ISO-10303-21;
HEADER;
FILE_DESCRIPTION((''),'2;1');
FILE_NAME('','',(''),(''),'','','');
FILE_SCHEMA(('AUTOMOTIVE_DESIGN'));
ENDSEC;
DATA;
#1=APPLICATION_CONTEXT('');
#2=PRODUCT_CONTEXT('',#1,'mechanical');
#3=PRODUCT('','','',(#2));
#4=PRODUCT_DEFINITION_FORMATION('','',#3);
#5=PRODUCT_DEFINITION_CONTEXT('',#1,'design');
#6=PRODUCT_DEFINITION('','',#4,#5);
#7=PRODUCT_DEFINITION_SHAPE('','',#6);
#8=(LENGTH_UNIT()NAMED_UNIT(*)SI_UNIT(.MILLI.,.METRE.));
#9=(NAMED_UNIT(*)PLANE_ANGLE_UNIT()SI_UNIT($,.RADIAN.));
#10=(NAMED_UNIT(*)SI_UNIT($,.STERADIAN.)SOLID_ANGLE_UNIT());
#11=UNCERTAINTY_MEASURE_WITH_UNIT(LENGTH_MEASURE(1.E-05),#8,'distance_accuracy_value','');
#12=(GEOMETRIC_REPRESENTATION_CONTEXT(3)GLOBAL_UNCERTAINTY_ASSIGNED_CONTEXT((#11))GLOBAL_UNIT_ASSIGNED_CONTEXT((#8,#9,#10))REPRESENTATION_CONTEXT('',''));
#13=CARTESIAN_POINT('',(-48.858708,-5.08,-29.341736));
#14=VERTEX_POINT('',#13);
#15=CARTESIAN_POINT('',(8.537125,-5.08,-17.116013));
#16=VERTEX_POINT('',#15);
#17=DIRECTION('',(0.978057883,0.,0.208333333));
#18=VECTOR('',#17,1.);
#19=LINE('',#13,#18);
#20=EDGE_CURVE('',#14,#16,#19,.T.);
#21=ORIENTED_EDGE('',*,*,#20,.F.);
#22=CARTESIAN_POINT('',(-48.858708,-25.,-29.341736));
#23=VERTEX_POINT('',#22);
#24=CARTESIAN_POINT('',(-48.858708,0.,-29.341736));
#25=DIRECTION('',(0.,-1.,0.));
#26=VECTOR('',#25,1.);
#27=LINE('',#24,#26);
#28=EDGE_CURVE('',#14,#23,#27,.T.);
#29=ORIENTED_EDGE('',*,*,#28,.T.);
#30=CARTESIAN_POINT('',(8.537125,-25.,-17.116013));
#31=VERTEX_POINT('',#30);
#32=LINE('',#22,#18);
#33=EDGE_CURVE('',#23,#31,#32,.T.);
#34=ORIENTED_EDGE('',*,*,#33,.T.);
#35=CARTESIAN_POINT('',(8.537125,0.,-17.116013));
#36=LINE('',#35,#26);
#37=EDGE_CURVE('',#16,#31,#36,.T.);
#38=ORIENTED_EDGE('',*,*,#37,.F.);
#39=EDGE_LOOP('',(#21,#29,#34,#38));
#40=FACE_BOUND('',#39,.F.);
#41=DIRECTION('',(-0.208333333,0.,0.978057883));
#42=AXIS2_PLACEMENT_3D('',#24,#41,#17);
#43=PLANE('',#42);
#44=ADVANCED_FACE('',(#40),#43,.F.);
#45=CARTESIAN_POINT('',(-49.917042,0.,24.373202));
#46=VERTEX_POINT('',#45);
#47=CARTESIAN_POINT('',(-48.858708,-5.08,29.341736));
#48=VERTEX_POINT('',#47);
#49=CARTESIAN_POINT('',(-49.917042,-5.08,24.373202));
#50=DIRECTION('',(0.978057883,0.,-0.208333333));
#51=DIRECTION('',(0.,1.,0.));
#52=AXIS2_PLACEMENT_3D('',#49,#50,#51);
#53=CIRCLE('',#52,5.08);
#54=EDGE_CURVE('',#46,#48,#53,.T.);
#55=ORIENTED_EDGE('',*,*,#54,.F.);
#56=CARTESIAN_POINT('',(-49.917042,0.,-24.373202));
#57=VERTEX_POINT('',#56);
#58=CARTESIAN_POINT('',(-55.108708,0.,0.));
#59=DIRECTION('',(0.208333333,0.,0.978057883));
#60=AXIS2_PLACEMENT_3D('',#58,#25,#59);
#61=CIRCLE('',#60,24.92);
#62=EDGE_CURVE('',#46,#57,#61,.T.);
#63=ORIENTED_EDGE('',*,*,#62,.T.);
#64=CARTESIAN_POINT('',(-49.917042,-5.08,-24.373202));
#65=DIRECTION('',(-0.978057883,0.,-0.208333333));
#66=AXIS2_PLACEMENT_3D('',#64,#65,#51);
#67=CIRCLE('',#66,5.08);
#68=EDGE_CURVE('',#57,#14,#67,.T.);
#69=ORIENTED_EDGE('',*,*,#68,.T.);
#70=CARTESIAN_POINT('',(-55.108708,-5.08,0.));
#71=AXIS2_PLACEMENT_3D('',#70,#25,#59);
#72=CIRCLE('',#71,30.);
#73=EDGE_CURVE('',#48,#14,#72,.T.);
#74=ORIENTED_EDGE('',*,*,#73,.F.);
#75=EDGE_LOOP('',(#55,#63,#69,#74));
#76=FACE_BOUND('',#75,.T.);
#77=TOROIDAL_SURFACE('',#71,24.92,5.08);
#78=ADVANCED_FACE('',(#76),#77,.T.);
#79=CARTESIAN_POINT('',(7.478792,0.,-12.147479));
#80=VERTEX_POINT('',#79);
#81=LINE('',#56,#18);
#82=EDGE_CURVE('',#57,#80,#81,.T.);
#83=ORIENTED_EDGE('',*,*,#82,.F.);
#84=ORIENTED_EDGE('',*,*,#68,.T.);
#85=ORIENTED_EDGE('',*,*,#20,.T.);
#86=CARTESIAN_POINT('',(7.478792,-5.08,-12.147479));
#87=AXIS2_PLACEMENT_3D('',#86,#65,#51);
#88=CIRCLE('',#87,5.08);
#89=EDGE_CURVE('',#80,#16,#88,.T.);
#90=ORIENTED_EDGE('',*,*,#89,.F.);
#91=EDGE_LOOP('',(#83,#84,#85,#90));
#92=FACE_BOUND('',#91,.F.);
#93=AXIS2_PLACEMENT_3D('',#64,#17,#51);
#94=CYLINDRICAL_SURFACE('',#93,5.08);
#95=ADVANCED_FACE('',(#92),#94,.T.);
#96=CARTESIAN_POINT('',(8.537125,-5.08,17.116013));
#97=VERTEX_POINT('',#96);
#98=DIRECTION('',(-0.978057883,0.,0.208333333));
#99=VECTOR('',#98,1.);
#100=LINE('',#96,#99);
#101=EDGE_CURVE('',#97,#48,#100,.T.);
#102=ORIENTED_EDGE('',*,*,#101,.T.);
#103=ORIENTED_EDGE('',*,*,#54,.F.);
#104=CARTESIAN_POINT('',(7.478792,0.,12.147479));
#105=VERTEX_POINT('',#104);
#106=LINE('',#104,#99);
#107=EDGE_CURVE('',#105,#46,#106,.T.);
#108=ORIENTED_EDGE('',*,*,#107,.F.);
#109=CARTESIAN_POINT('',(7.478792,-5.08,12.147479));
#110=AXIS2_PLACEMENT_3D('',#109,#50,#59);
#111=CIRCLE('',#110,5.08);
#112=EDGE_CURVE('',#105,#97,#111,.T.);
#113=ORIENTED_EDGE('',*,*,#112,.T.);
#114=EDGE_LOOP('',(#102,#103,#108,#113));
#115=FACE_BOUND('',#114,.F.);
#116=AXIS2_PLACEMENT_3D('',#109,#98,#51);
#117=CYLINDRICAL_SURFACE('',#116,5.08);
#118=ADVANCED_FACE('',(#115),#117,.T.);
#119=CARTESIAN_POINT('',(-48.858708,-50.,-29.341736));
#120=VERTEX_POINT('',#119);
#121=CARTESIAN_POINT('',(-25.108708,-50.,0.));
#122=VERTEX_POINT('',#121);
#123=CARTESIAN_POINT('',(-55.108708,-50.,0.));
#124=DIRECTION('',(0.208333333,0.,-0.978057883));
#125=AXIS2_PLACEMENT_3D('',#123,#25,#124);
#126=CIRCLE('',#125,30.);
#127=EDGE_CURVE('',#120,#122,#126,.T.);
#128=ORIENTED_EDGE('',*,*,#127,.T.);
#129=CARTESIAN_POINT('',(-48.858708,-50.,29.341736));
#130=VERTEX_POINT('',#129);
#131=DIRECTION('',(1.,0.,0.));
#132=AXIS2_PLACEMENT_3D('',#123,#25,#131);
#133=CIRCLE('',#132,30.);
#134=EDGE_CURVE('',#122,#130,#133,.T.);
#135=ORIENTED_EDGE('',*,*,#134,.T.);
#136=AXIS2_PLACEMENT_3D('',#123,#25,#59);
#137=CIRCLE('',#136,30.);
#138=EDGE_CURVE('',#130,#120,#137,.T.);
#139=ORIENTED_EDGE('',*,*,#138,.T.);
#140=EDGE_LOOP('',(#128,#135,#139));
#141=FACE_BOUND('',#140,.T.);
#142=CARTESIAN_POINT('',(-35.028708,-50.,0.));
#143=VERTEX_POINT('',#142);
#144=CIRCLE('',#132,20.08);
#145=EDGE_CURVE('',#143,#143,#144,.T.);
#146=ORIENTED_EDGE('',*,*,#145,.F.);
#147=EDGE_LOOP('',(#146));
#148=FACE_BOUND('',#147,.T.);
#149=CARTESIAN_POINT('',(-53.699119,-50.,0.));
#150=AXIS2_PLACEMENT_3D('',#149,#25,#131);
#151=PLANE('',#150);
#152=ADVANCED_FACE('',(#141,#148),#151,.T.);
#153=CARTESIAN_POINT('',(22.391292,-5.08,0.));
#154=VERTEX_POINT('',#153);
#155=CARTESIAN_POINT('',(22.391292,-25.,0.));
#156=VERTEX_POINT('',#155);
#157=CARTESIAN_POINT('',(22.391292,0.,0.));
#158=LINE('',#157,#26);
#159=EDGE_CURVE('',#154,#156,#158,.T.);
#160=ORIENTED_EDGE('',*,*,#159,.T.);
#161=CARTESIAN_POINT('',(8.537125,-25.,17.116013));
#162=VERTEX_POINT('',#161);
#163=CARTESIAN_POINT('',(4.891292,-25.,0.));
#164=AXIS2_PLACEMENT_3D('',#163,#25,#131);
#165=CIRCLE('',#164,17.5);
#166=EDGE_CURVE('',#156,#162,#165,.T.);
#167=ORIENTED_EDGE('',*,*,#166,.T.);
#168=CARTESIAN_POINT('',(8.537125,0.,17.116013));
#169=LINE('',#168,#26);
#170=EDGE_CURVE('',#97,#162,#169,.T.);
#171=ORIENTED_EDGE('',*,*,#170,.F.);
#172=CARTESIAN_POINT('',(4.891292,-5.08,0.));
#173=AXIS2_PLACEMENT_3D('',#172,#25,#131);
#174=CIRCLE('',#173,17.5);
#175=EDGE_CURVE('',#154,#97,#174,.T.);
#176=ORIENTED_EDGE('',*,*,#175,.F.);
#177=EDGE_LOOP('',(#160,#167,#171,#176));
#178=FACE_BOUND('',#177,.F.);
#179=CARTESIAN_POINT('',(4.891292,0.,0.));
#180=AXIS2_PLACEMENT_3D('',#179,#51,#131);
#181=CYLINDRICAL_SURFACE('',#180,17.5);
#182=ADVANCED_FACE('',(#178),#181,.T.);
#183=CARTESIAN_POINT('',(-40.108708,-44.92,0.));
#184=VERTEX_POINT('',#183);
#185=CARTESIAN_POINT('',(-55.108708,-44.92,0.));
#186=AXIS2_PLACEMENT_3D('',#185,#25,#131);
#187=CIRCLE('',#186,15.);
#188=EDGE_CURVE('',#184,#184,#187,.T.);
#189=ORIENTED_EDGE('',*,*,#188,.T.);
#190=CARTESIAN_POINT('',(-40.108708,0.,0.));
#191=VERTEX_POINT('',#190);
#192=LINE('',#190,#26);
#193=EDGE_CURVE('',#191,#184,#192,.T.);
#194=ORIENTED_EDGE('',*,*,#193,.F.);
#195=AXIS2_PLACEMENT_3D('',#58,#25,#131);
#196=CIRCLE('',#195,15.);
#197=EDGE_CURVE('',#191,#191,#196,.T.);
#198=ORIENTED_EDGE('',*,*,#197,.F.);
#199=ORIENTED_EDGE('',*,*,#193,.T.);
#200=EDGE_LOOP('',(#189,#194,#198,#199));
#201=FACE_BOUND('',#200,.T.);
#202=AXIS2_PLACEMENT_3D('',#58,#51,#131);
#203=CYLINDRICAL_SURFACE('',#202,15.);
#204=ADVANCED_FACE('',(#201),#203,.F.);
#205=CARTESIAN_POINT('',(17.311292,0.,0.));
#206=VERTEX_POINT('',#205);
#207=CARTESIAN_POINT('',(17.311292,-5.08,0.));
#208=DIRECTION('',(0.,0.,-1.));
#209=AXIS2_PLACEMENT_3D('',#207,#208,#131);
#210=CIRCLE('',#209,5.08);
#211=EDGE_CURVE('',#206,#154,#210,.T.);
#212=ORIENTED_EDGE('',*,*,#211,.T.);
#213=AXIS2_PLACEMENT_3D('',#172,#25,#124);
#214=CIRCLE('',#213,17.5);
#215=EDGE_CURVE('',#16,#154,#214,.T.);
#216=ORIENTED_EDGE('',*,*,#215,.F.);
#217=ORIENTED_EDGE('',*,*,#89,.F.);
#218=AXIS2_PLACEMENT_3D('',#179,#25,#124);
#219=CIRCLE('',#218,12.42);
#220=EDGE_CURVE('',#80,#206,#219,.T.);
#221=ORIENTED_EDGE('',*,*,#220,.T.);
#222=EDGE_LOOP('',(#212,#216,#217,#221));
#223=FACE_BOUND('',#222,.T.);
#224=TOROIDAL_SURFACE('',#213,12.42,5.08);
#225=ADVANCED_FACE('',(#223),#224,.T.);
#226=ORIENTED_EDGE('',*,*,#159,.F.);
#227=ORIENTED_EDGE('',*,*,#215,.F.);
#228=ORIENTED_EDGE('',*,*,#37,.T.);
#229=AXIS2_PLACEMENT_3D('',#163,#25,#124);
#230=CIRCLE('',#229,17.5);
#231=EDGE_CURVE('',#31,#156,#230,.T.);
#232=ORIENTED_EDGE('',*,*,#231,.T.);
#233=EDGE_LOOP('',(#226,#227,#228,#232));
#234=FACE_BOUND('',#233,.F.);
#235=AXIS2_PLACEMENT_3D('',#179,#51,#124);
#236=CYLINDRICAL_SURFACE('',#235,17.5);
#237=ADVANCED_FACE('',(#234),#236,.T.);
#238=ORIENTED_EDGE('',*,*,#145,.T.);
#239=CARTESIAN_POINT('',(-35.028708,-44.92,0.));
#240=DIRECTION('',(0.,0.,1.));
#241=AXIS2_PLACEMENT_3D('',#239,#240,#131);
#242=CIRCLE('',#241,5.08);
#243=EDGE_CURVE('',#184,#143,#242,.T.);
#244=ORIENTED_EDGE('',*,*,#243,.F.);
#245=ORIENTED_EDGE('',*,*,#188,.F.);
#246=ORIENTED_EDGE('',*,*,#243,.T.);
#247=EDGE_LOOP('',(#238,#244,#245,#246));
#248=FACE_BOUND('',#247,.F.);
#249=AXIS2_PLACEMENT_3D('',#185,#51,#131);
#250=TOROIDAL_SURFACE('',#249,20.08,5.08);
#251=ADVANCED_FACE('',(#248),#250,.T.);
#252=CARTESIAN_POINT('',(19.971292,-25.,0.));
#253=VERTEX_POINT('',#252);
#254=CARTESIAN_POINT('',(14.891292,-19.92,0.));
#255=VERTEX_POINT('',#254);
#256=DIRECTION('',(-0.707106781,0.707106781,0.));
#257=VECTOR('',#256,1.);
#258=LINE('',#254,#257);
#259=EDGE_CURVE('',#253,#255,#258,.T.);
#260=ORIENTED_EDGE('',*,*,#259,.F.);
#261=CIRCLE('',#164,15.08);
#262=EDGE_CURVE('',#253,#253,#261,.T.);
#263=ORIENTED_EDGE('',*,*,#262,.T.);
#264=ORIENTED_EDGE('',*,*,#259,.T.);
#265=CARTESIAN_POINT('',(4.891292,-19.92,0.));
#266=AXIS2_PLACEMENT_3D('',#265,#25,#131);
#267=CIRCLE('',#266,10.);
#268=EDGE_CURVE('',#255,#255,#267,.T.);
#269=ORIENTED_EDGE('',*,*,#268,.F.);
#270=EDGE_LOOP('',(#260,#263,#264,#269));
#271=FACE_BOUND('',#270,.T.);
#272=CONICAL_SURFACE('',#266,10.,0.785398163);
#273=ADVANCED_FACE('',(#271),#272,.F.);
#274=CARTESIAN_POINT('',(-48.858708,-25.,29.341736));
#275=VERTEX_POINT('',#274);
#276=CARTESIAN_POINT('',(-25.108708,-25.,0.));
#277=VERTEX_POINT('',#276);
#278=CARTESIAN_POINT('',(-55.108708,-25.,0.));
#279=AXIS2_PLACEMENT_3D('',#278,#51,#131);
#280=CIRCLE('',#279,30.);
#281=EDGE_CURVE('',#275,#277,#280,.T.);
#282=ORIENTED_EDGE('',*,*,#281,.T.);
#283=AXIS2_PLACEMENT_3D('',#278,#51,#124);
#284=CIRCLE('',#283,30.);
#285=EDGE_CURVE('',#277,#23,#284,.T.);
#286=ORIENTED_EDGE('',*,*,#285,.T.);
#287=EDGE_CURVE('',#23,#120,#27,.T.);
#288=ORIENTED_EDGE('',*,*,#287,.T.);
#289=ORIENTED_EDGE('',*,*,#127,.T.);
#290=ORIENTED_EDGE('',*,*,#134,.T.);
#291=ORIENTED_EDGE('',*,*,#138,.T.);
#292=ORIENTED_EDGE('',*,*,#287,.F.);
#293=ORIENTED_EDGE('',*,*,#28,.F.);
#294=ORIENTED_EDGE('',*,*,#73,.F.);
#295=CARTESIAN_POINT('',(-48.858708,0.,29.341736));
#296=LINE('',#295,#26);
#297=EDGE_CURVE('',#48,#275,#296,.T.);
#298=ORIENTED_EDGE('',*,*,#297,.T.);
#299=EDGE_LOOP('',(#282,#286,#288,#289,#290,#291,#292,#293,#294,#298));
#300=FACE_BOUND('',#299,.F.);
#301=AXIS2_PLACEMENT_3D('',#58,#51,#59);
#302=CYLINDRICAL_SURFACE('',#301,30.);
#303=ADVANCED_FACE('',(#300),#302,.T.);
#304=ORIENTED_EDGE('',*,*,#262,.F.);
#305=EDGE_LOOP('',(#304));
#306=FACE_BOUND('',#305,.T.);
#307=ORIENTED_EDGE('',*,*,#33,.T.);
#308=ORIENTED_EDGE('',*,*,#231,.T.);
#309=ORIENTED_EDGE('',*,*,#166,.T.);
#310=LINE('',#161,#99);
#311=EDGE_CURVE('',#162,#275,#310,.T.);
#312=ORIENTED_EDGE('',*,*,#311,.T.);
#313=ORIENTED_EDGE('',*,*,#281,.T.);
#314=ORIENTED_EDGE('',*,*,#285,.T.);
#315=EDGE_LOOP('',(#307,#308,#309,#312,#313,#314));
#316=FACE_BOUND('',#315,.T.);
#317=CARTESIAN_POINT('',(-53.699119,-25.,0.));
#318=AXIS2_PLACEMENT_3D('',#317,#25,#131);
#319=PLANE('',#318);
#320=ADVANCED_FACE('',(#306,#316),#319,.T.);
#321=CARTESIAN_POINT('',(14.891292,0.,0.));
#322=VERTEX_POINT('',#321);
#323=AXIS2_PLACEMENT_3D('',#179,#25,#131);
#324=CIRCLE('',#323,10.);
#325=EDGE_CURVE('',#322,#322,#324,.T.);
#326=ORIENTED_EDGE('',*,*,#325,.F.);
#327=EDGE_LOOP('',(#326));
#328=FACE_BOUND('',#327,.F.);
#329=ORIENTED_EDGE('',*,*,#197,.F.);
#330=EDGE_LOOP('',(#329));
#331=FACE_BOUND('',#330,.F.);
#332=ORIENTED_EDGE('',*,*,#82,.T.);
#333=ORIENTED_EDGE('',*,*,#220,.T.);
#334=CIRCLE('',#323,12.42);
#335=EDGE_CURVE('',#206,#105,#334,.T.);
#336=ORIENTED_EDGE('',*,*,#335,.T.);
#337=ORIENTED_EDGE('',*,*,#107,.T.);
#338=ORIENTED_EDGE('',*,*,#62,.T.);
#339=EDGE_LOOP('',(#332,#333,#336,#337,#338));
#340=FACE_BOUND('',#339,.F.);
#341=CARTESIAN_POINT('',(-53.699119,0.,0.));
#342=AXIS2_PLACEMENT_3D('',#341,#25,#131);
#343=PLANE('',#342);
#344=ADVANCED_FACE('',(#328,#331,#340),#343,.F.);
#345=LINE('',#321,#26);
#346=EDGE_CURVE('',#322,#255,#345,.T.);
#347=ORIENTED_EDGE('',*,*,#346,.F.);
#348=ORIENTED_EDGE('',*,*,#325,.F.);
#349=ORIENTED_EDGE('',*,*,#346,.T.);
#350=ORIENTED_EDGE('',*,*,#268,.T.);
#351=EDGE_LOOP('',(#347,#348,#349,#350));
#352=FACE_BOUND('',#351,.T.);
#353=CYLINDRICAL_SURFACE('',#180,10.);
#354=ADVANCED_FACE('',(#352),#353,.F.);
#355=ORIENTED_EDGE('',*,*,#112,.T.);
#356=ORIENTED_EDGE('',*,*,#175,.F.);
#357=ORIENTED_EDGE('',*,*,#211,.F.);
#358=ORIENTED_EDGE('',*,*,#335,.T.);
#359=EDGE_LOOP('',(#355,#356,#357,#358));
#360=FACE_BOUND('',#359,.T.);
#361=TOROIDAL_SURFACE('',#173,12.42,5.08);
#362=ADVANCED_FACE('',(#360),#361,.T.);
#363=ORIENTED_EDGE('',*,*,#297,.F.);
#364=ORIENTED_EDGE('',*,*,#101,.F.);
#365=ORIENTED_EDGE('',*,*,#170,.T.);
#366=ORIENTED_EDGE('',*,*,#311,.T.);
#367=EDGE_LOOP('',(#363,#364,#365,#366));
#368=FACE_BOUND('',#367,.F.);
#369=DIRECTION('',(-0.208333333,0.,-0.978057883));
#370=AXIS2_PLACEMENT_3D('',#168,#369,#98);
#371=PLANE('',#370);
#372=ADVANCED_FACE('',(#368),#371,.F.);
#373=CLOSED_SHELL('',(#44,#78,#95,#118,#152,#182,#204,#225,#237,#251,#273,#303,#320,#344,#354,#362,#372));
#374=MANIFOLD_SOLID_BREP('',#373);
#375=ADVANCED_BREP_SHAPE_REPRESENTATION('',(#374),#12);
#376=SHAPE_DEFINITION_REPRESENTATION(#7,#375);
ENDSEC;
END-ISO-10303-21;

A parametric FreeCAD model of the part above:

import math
import FreeCAD as App
import Part
import Sketcher


def edges_at(feature, points):
    """Names of the edges that pass closest to the given points."""
    edges = feature.Shape.Edges
    near = lambda p: min(range(len(edges)), key=lambda i: edges[i].distToShape(Part.Vertex(*p))[0])
    return sorted({f"Edge{near(p) + 1}" for p in points})

doc = App.newDocument("Part")
params = doc.addObject("Spreadsheet::Sheet", "Params")
for row, (alias, value) in enumerate([
    ("sketch1_diameter", "30 mm"),
    ("sketch1_diameter2", "20 mm"),
    ("sketch1_radius", "30 mm"),
    ("sketch1_radius2", "17.5 mm"),
    ("pad1_length", "25 mm"),
    ("sketch2_diameter", "30 mm"),
    ("sketch2_radius", "30 mm"),
    ("pad2_length", "50 mm"),
    ("fillet_radius", "5.08 mm"),
    ("chamfer_size", "5.08 mm"),
], start=1):
    params.set(f"A{row}", alias)
    params.set(f"B{row}", "=" + value)
    params.setAlias(f"B{row}", alias)

body = doc.addObject("PartDesign::Body", "Body")

sketch1 = body.newObject("Sketcher::SketchObject", "Sketch")
sketch1.AttachmentSupport = (doc.getObject("XZ_Plane"), [""])
sketch1.MapMode = "FlatFace"
sketch1.addGeometry(Part.ArcOfCircle(Part.Circle(App.Vector(-55, 0, 0), App.Vector(0, 0, 1), 30), math.radians(78), math.radians(282)), False)
sketch1.addGeometry(Part.LineSegment(App.Vector(-49, -29, 0), App.Vector(9, -17, 0)), False)
sketch1.addGeometry(Part.ArcOfCircle(Part.Circle(App.Vector(5, 0, 0), App.Vector(0, 0, 1), 18), math.radians(-78), math.radians(0)), False)
sketch1.addGeometry(Part.ArcOfCircle(Part.Circle(App.Vector(5, 0, 0), App.Vector(0, 0, 1), 18), math.radians(0), math.radians(78)), False)
sketch1.addGeometry(Part.LineSegment(App.Vector(9, 17, 0), App.Vector(-49, 29, 0)), False)
sketch1.addGeometry(Part.Circle(App.Vector(-55, 0, 0), App.Vector(0, 0, 1), 15), False)
sketch1.addGeometry(Part.Circle(App.Vector(5, 0, 0), App.Vector(0, 0, 1), 10), False)
sketch1.addConstraint(Sketcher.Constraint("Tangent", 0, 2, 1, 1))
sketch1.addConstraint(Sketcher.Constraint("Tangent", 1, 2, 2, 1))
sketch1.addConstraint(Sketcher.Constraint("Tangent", 2, 2, 3, 1))
sketch1.addConstraint(Sketcher.Constraint("Tangent", 3, 2, 4, 1))
sketch1.addConstraint(Sketcher.Constraint("Tangent", 4, 2, 0, 1))
sketch1.addConstraint(Sketcher.Constraint("Coincident", 5, 3, 0, 3))
sketch1.addConstraint(Sketcher.Constraint("Coincident", 6, 3, 2, 3))
sketch1.addConstraint(Sketcher.Constraint("Equal", 2, 3))
sketch1.addConstraint(Sketcher.Constraint("Symmetric", 1, 2, 3, 2, -1))
sketch1.addConstraint(Sketcher.Constraint("PointOnObject", 2, 2, -1))
sketch1.addConstraint(Sketcher.Constraint("Diameter", 5, 30.0))
sketch1.addConstraint(Sketcher.Constraint("Diameter", 6, 20.0))
sketch1.addConstraint(Sketcher.Constraint("Radius", 0, 30.0))
sketch1.addConstraint(Sketcher.Constraint("Radius", 2, 17.5))
sketch1.addConstraint(Sketcher.Constraint("DistanceX", 0, 3, 2, 3, 60.0))
sketch1.addConstraint(Sketcher.Constraint("DistanceX", 0, 3, -1, 1, 55.108708))
sketch1.setExpression("Constraints[10]", "Params.sketch1_diameter")
sketch1.setExpression("Constraints[11]", "Params.sketch1_diameter2")
sketch1.setExpression("Constraints[12]", "Params.sketch1_radius")
sketch1.setExpression("Constraints[13]", "Params.sketch1_radius2")
pad1 = body.newObject("PartDesign::Pad", "Pad")
pad1.Profile = sketch1
pad1.setExpression("Length", "Params.pad1_length")

sketch2 = body.newObject("Sketcher::SketchObject", "Sketch001")
sketch2.AttachmentSupport = (doc.getObject("XZ_Plane"), [""])
sketch2.MapMode = "FlatFace"
sketch2.addGeometry(Part.ArcOfCircle(Part.Circle(App.Vector(-55, 0, 0), App.Vector(0, 0, 1), 30), math.radians(-78), math.radians(0)), False)
sketch2.addGeometry(Part.ArcOfCircle(Part.Circle(App.Vector(-55, 0, 0), App.Vector(0, 0, 1), 30), math.radians(0), math.radians(78)), False)
sketch2.addGeometry(Part.ArcOfCircle(Part.Circle(App.Vector(-55, 0, 0), App.Vector(0, 0, 1), 30), math.radians(78), math.radians(282)), False)
sketch2.addGeometry(Part.Circle(App.Vector(-55, 0, 0), App.Vector(0, 0, 1), 15), False)
sketch2.addConstraint(Sketcher.Constraint("Tangent", 0, 2, 1, 1))
sketch2.addConstraint(Sketcher.Constraint("Tangent", 1, 2, 2, 1))
sketch2.addConstraint(Sketcher.Constraint("Tangent", 2, 2, 0, 1))
sketch2.addConstraint(Sketcher.Constraint("Coincident", 3, 3, 0, 3))
sketch2.addConstraint(Sketcher.Constraint("Symmetric", 1, 2, 2, 2, -1))
sketch2.addConstraint(Sketcher.Constraint("PointOnObject", 0, 2, -1))
sketch2.addConstraint(Sketcher.Constraint("Diameter", 3, 30.0))
sketch2.addConstraint(Sketcher.Constraint("Radius", 0, 30.0))
sketch2.addConstraint(Sketcher.Constraint("DistanceX", 0, 3, 1, 2, 6.25))
sketch2.addConstraint(Sketcher.Constraint("DistanceX", 0, 3, -1, 1, 55.108708))
sketch2.setExpression("Constraints[6]", "Params.sketch2_diameter")
sketch2.setExpression("Constraints[7]", "Params.sketch2_radius")
pad2 = body.newObject("PartDesign::Pad", "Pad001")
pad2.Profile = sketch2
pad2.setExpression("Length", "Params.pad2_length")
doc.recompute()

fillet = body.newObject("PartDesign::Fillet", "Fillet")
fillet.Base = (pad2, edges_at(pad2, [(-70.109, -50, 0), (-20.161, 0, -23.229)]))
fillet.setExpression("Radius", "Params.fillet_radius")
doc.recompute()

chamfer = body.newObject("PartDesign::Chamfer", "Chamfer")
chamfer.Base = (fillet, edges_at(fillet, [
    (-38.621, -48.512, 0),
    (-70.109, -44.92, 0),
    (-75.189, -50, 0),
    (-5.109, -25, 0),
]))
chamfer.setExpression("Size", "Params.chamfer_size")

doc.recompute()
